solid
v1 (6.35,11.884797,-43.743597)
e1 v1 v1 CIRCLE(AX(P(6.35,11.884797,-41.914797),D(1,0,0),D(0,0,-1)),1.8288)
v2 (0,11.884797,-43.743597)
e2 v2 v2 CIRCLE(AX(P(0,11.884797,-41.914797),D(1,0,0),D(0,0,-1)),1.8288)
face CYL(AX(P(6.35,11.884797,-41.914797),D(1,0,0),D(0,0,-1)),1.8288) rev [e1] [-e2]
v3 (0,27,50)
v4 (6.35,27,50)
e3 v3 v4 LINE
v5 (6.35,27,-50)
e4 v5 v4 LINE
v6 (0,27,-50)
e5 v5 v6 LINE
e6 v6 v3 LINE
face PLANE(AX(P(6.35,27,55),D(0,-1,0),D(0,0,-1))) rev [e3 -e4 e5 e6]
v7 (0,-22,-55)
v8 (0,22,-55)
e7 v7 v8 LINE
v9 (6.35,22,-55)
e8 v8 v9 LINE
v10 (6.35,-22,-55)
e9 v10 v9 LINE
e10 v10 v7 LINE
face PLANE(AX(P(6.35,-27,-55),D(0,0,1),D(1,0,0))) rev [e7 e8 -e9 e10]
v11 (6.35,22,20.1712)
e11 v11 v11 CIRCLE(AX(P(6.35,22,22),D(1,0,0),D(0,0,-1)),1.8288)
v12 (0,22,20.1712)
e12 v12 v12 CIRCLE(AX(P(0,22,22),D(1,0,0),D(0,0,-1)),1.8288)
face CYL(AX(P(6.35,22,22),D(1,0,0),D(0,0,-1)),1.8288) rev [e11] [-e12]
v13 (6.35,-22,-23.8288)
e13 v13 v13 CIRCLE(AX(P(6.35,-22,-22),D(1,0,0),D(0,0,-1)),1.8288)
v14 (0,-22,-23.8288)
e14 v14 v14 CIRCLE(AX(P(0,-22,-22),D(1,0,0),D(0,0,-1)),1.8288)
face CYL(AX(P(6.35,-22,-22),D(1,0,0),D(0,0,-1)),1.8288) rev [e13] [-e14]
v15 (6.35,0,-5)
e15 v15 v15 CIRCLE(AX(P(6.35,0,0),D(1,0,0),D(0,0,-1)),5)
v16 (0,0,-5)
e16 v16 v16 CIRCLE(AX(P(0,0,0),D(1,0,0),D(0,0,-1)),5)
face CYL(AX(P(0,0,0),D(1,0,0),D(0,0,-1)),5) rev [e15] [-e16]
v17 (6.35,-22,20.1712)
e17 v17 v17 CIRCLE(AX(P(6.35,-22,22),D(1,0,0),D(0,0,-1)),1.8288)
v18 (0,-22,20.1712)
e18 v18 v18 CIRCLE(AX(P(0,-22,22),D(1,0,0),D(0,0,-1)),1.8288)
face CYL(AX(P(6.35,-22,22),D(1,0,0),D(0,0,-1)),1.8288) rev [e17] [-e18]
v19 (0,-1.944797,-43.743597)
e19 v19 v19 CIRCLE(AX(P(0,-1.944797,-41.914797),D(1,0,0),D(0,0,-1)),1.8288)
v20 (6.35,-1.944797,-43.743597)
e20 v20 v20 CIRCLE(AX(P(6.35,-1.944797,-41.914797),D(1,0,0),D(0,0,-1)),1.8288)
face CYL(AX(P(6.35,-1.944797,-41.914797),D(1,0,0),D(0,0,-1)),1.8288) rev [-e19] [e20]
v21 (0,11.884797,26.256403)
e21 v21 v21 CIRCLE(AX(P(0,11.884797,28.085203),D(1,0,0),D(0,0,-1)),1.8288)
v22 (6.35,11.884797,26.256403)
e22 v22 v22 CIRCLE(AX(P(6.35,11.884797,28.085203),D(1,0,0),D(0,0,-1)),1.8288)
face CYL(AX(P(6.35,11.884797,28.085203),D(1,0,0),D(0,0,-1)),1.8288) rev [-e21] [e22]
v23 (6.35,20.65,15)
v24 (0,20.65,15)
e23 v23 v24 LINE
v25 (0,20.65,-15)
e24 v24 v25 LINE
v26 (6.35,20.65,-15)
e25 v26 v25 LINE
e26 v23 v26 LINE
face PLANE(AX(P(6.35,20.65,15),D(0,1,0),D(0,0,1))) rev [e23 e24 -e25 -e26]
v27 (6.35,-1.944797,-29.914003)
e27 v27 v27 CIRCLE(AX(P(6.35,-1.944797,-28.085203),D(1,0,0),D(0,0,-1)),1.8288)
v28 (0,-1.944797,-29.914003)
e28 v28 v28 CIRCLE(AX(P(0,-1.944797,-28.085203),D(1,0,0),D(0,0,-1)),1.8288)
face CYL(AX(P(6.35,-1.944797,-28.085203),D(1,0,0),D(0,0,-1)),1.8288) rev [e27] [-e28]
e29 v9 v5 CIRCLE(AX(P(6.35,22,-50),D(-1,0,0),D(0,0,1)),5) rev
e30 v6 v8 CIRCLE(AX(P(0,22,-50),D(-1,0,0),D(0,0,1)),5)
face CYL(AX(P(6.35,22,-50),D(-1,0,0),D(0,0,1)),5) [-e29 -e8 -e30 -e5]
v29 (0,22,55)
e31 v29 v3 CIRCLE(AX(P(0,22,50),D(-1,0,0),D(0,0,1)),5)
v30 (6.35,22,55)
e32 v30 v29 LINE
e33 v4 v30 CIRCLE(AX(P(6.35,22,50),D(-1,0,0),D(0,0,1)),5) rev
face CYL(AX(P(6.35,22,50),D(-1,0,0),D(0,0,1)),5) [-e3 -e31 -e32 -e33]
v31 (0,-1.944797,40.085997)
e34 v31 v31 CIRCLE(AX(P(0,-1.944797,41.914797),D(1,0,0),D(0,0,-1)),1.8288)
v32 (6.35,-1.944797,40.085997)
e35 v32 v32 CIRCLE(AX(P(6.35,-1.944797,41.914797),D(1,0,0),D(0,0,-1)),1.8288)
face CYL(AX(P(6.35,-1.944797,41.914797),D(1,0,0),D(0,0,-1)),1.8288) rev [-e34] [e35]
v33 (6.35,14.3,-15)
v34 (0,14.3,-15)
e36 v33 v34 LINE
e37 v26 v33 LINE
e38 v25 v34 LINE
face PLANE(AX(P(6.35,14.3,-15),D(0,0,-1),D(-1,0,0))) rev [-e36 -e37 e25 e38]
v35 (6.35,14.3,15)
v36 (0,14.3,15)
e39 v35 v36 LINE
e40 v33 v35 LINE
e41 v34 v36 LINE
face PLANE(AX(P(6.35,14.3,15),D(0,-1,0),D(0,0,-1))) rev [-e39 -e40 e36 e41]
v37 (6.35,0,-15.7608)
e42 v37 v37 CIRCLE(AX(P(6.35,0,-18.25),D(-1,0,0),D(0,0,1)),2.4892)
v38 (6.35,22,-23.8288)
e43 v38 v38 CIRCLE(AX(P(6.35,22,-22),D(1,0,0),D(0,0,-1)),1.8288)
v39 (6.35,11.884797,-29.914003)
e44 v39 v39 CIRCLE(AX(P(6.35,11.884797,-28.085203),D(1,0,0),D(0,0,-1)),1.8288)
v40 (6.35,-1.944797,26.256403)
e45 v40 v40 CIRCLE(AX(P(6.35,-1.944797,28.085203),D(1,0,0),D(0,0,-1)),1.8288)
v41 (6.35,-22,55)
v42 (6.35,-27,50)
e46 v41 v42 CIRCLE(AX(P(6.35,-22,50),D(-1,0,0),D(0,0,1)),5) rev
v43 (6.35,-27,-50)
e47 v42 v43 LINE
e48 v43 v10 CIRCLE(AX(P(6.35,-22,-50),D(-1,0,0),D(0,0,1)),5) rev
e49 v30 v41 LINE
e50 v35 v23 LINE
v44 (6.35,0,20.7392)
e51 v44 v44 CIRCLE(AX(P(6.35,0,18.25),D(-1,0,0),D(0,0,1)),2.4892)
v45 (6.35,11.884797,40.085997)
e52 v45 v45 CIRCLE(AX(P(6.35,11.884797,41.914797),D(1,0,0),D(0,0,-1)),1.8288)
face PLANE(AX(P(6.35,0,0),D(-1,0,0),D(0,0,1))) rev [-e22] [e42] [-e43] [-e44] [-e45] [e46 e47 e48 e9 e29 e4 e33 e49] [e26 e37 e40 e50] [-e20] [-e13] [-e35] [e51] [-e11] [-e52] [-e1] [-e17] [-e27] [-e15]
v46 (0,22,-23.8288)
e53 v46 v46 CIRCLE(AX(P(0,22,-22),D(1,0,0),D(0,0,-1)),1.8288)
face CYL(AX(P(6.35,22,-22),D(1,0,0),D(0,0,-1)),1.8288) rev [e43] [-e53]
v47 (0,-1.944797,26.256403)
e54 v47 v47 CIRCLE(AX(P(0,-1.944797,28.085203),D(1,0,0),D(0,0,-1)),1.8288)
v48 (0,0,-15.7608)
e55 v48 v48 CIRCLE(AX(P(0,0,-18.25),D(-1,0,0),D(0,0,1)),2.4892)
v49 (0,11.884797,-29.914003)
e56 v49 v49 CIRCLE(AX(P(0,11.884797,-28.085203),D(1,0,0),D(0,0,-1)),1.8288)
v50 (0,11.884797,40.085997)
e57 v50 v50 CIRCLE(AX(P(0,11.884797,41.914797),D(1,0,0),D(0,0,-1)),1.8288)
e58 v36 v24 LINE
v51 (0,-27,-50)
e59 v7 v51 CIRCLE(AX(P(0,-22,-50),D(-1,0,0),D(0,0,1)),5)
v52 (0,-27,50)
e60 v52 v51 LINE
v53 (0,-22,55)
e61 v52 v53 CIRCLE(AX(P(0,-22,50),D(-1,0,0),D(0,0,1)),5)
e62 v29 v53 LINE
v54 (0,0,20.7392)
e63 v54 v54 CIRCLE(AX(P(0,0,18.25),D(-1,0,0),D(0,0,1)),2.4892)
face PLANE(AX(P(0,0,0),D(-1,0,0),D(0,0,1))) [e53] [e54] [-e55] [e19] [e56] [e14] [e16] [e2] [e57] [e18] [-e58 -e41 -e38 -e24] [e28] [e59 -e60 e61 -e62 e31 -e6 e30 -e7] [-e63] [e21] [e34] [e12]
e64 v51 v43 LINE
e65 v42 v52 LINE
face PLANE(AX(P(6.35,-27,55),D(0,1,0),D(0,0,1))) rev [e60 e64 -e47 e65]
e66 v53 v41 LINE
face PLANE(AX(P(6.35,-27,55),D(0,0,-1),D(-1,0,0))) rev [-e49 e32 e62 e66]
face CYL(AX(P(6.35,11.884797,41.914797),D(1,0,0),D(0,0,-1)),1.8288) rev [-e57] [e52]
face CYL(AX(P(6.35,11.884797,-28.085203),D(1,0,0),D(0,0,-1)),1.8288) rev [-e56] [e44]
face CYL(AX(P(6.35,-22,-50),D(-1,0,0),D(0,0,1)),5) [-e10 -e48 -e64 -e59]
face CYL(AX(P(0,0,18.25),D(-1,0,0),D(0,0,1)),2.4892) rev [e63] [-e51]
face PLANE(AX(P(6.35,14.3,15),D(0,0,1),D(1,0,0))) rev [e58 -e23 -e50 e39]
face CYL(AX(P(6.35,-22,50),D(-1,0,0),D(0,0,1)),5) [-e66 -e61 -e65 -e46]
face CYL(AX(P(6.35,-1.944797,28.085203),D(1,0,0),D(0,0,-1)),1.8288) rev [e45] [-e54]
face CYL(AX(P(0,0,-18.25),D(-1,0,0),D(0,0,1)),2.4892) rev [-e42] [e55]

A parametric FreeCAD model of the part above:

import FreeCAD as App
import Part
import Sketcher
from FreeCAD import Vector
Q = App.Units.Quantity


def edges_at(feature, points):
    """Names of the edges that pass closest to the given points."""
    edges = feature.Shape.Edges
    near = lambda p: min(range(len(edges)), key=lambda i: edges[i].distToShape(Part.Vertex(*p))[0])
    return sorted({f"Edge{near(p) + 1}" for p in points})


def add_polygon(sketch, points):
    """Adds a closed chain of lines whose ends are joined by coincident constraints."""
    first, n = sketch.GeometryCount, len(points)
    for a, b in zip(points, points[1:] + points[:1]):
        sketch.addGeometry(Part.LineSegment(App.Vector(*a, 0), App.Vector(*b, 0)), False)
    for i in range(n):
        sketch.addConstraint(Sketcher.Constraint("Coincident", first + i, 2, first + (i + 1) % n, 1))

doc = App.newDocument("Part")
body = doc.addObject("PartDesign::Body", "Body")

# Sketch on YZ plane
sketch1 = body.newObject("Sketcher::SketchObject", "Sketch")
sketch1.AttachmentSupport = (doc.getObject("YZ_Plane"), [""])
sketch1.MapMode = "FlatFace"
add_polygon(sketch1, [(27, 55), (-27, 55), (-27, -55), (27, -55)])  # lines 0-3
sketch1.addConstraint([
    Sketcher.Constraint("Horizontal", 0),
    Sketcher.Constraint("Vertical", 1),
    Sketcher.Constraint("Horizontal", 2),
    Sketcher.Constraint("Vertical", 3),
    Sketcher.Constraint("Symmetric", 0, 2, 2, 2, -1, 1),
    Sketcher.Constraint("DistanceX", 0, 2, 0, 1, Q("54 mm")),
    Sketcher.Constraint("DistanceY", 1, 2, 1, 1, Q("110 mm")),
])
pad1 = body.newObject("PartDesign::Pad", "Pad")
pad1.Profile = sketch1
pad1.Length = 6.35
doc.recompute()

fillet = body.newObject("PartDesign::Fillet", "Fillet")
fillet.Base = (pad1, edges_at(pad1, [
    (3.175, -27, -55),
    (3.175, -27, 55),
    (3.175, 27, 55),
    (3.175, 27, -55),
]))
fillet.Radius = 5

# Sketch on YZ plane
sketch2 = body.newObject("Sketcher::SketchObject", "Sketch001")
sketch2.AttachmentSupport = (doc.getObject("YZ_Plane"), [""])
sketch2.MapMode = "FlatFace"
sketch2.AttachmentOffset = App.Placement(Vector(0, 0, 6.35), App.Rotation())
sketch2.addGeometry([
    Part.Circle(Vector(22, 22, 0), Vector(0, 0, 1), 1.8),
    Part.Circle(Vector(22, -22, 0), Vector(0, 0, 1), 1.8),
    Part.Circle(Vector(-22, -22, 0), Vector(0, 0, 1), 1.8),
    Part.Circle(Vector(-22, 22, 0), Vector(0, 0, 1), 1.8),
], False)
sketch2.addConstraint([
    Sketcher.Constraint("Equal", 0, 1),
    Sketcher.Constraint("Equal", 1, 2),
    Sketcher.Constraint("Equal", 2, 3),
    Sketcher.Constraint("Symmetric", 0, 3, 2, 3, -1, 1),
    Sketcher.Constraint("Symmetric", 1, 3, 3, 3, -1, 1),
    Sketcher.Constraint("Symmetric", 1, 3, 2, 3, -2),
    Sketcher.Constraint("DistanceX", -1, 1, 0, 3, Q("22 mm")),
    Sketcher.Constraint("DistanceY", -1, 1, 0, 3, Q("22 mm")),
    Sketcher.Constraint("Diameter", 0, Q("3.6576 mm")),
])
doc.recompute()
hole = body.newObject("PartDesign::Hole", "Hole")
hole.Profile = sketch2
hole.ThreadType = "None"
hole.Diameter = 3.6576
hole.DepthType = "ThroughAll"

# Sketch on YZ plane
sketch3 = body.newObject("Sketcher::SketchObject", "Sketch002")
sketch3.AttachmentSupport = (doc.getObject("YZ_Plane"), [""])
sketch3.MapMode = "FlatFace"
sketch3.AttachmentOffset = App.Placement(Vector(0, 0, 6.35), App.Rotation())
sketch3.addGeometry(Part.Circle(Vector(0, 0, 0), Vector(0, 0, 1), 5), False)
sketch3.addConstraint([
    Sketcher.Constraint("Coincident", 0, 3, -1, 1),
    Sketcher.Constraint("Diameter", 0, Q("10 mm")),
])
pocket1 = body.newObject("PartDesign::Pocket", "Pocket")
pocket1.Profile = sketch3
pocket1.Type = "ThroughAll"

# Sketch on YZ plane
sketch4 = body.newObject("Sketcher::SketchObject", "Sketch003")
sketch4.AttachmentSupport = (doc.getObject("YZ_Plane"), [""])
sketch4.MapMode = "FlatFace"
sketch4.AttachmentOffset = App.Placement(Vector(0, 0, 6.35), App.Rotation())
sketch4.addGeometry([
    Part.Circle(Vector(11.9, 41.9, 0), Vector(0, 0, 1), 1.8),  # 0
    Part.Circle(Vector(11.9, 28.1, 0), Vector(0, 0, 1), 1.8),  # 1
    Part.Circle(Vector(-1.9, 28.1, 0), Vector(0, 0, 1), 1.8),  # 2
    Part.Circle(Vector(-1.9, 41.9, 0), Vector(0, 0, 1), 1.8),  # 3
    Part.Circle(Vector(11.9, -28.1, 0), Vector(0, 0, 1), 1.8),  # 4
    Part.Circle(Vector(-1.9, -28.1, 0), Vector(0, 0, 1), 1.8),  # 5
    Part.Circle(Vector(-1.9, -41.9, 0), Vector(0, 0, 1), 1.8),  # 6
    Part.Circle(Vector(11.9, -41.9, 0), Vector(0, 0, 1), 1.8),  # 7
], False)
sketch4.addConstraint([
    Sketcher.Constraint("Equal", 0, 1),
    Sketcher.Constraint("Equal", 1, 2),
    Sketcher.Constraint("Equal", 2, 3),
    Sketcher.Constraint("Equal", 3, 4),
    Sketcher.Constraint("Equal", 4, 5),
    Sketcher.Constraint("Equal", 5, 6),
    Sketcher.Constraint("Equal", 6, 7),
    Sketcher.Constraint("Symmetric", 1, 3, 4, 3, -1),
    Sketcher.Constraint("Symmetric", 2, 3, 5, 3, -1),
    Sketcher.Constraint("Symmetric", 3, 3, 6, 3, -1),
    Sketcher.Constraint("Symmetric", 0, 3, 7, 3, -1),
    Sketcher.Constraint("Horizontal", 1, 3, 2, 3),
    Sketcher.Constraint("Horizontal", 0, 3, 3, 3),
    Sketcher.Constraint("Vertical", 0, 3, 1, 3),
    Sketcher.Constraint("Vertical", 2, 3, 3, 3),
    Sketcher.Constraint("DistanceY", 4, 3, 0, 3, Q("70 mm")),
    Sketcher.Constraint("Diameter", 0, Q("3.6576 mm")),
    Sketcher.Constraint("DistanceX", -1, 1, 0, 3, Q("11.884797 mm")),
    Sketcher.Constraint("DistanceY", -1, 1, 0, 3, Q("41.914797 mm")),
    Sketcher.Constraint("DistanceX", 2, 3, -1, 1, Q("1.944797 mm")),
])
doc.recompute()
hole2 = body.newObject("PartDesign::Hole", "Hole001")
hole2.Profile = sketch4
hole2.ThreadType = "None"
hole2.Diameter = 3.6576
hole2.DepthType = "ThroughAll"

# Sketch on YZ plane
sketch5 = body.newObject("Sketcher::SketchObject", "Sketch004")
sketch5.AttachmentSupport = (doc.getObject("YZ_Plane"), [""])
sketch5.MapMode = "FlatFace"
add_polygon(sketch5, [(21, -15), (14, -15), (14, 15), (21, 15)])  # lines 0-3
sketch5.addConstraint([
    Sketcher.Constraint("Horizontal", 0),
    Sketcher.Constraint("Vertical", 1),
    Sketcher.Constraint("Horizontal", 2),
    Sketcher.Constraint("Vertical", 3),
    Sketcher.Constraint("DistanceY", 1, 1, 1, 2, Q("30 mm")),
    Sketcher.Constraint("DistanceY", 0, 2, -1, 1, Q("15 mm")),
    Sketcher.Constraint("DistanceX", 0, 2, 0, 1, Q("6.35 mm")),
    Sketcher.Constraint("DistanceX", -1, 1, 0, 2, Q("14.3 mm")),
])
pocket2 = body.newObject("PartDesign::Pocket", "Pocket001")
pocket2.Profile = sketch5
pocket2.Type = "ThroughAll"
pocket2.Reversed = True

# Sketch on YZ plane
sketch6 = body.newObject("Sketcher::SketchObject", "Sketch005")
sketch6.AttachmentSupport = (doc.getObject("YZ_Plane"), [""])
sketch6.MapMode = "FlatFace"
sketch6.addGeometry([
    Part.Circle(Vector(0, 18.2, 0), Vector(0, 0, 1), 2.5),
    Part.Circle(Vector(0, -18.2, 0), Vector(0, 0, 1), 2.5),
], False)
sketch6.addConstraint([
    Sketcher.Constraint("Equal", 0, 1),
    Sketcher.Constraint("Symmetric", 0, 3, 1, 3, -1, 1),
    Sketcher.Constraint("PointOnObject", 0, 3, -2),
    Sketcher.Constraint("Diameter", 0, Q("4.9784 mm")),
    Sketcher.Constraint("DistanceY", 1, 3, 0, 3, Q("36.5 mm")),
])
doc.recompute()
hole3 = body.newObject("PartDesign::Hole", "Hole002")
hole3.Profile = sketch6
hole3.ThreadType = "None"
hole3.Diameter = 4.9784
hole3.DepthType = "ThroughAll"
hole3.Reversed = True

doc.recompute()
